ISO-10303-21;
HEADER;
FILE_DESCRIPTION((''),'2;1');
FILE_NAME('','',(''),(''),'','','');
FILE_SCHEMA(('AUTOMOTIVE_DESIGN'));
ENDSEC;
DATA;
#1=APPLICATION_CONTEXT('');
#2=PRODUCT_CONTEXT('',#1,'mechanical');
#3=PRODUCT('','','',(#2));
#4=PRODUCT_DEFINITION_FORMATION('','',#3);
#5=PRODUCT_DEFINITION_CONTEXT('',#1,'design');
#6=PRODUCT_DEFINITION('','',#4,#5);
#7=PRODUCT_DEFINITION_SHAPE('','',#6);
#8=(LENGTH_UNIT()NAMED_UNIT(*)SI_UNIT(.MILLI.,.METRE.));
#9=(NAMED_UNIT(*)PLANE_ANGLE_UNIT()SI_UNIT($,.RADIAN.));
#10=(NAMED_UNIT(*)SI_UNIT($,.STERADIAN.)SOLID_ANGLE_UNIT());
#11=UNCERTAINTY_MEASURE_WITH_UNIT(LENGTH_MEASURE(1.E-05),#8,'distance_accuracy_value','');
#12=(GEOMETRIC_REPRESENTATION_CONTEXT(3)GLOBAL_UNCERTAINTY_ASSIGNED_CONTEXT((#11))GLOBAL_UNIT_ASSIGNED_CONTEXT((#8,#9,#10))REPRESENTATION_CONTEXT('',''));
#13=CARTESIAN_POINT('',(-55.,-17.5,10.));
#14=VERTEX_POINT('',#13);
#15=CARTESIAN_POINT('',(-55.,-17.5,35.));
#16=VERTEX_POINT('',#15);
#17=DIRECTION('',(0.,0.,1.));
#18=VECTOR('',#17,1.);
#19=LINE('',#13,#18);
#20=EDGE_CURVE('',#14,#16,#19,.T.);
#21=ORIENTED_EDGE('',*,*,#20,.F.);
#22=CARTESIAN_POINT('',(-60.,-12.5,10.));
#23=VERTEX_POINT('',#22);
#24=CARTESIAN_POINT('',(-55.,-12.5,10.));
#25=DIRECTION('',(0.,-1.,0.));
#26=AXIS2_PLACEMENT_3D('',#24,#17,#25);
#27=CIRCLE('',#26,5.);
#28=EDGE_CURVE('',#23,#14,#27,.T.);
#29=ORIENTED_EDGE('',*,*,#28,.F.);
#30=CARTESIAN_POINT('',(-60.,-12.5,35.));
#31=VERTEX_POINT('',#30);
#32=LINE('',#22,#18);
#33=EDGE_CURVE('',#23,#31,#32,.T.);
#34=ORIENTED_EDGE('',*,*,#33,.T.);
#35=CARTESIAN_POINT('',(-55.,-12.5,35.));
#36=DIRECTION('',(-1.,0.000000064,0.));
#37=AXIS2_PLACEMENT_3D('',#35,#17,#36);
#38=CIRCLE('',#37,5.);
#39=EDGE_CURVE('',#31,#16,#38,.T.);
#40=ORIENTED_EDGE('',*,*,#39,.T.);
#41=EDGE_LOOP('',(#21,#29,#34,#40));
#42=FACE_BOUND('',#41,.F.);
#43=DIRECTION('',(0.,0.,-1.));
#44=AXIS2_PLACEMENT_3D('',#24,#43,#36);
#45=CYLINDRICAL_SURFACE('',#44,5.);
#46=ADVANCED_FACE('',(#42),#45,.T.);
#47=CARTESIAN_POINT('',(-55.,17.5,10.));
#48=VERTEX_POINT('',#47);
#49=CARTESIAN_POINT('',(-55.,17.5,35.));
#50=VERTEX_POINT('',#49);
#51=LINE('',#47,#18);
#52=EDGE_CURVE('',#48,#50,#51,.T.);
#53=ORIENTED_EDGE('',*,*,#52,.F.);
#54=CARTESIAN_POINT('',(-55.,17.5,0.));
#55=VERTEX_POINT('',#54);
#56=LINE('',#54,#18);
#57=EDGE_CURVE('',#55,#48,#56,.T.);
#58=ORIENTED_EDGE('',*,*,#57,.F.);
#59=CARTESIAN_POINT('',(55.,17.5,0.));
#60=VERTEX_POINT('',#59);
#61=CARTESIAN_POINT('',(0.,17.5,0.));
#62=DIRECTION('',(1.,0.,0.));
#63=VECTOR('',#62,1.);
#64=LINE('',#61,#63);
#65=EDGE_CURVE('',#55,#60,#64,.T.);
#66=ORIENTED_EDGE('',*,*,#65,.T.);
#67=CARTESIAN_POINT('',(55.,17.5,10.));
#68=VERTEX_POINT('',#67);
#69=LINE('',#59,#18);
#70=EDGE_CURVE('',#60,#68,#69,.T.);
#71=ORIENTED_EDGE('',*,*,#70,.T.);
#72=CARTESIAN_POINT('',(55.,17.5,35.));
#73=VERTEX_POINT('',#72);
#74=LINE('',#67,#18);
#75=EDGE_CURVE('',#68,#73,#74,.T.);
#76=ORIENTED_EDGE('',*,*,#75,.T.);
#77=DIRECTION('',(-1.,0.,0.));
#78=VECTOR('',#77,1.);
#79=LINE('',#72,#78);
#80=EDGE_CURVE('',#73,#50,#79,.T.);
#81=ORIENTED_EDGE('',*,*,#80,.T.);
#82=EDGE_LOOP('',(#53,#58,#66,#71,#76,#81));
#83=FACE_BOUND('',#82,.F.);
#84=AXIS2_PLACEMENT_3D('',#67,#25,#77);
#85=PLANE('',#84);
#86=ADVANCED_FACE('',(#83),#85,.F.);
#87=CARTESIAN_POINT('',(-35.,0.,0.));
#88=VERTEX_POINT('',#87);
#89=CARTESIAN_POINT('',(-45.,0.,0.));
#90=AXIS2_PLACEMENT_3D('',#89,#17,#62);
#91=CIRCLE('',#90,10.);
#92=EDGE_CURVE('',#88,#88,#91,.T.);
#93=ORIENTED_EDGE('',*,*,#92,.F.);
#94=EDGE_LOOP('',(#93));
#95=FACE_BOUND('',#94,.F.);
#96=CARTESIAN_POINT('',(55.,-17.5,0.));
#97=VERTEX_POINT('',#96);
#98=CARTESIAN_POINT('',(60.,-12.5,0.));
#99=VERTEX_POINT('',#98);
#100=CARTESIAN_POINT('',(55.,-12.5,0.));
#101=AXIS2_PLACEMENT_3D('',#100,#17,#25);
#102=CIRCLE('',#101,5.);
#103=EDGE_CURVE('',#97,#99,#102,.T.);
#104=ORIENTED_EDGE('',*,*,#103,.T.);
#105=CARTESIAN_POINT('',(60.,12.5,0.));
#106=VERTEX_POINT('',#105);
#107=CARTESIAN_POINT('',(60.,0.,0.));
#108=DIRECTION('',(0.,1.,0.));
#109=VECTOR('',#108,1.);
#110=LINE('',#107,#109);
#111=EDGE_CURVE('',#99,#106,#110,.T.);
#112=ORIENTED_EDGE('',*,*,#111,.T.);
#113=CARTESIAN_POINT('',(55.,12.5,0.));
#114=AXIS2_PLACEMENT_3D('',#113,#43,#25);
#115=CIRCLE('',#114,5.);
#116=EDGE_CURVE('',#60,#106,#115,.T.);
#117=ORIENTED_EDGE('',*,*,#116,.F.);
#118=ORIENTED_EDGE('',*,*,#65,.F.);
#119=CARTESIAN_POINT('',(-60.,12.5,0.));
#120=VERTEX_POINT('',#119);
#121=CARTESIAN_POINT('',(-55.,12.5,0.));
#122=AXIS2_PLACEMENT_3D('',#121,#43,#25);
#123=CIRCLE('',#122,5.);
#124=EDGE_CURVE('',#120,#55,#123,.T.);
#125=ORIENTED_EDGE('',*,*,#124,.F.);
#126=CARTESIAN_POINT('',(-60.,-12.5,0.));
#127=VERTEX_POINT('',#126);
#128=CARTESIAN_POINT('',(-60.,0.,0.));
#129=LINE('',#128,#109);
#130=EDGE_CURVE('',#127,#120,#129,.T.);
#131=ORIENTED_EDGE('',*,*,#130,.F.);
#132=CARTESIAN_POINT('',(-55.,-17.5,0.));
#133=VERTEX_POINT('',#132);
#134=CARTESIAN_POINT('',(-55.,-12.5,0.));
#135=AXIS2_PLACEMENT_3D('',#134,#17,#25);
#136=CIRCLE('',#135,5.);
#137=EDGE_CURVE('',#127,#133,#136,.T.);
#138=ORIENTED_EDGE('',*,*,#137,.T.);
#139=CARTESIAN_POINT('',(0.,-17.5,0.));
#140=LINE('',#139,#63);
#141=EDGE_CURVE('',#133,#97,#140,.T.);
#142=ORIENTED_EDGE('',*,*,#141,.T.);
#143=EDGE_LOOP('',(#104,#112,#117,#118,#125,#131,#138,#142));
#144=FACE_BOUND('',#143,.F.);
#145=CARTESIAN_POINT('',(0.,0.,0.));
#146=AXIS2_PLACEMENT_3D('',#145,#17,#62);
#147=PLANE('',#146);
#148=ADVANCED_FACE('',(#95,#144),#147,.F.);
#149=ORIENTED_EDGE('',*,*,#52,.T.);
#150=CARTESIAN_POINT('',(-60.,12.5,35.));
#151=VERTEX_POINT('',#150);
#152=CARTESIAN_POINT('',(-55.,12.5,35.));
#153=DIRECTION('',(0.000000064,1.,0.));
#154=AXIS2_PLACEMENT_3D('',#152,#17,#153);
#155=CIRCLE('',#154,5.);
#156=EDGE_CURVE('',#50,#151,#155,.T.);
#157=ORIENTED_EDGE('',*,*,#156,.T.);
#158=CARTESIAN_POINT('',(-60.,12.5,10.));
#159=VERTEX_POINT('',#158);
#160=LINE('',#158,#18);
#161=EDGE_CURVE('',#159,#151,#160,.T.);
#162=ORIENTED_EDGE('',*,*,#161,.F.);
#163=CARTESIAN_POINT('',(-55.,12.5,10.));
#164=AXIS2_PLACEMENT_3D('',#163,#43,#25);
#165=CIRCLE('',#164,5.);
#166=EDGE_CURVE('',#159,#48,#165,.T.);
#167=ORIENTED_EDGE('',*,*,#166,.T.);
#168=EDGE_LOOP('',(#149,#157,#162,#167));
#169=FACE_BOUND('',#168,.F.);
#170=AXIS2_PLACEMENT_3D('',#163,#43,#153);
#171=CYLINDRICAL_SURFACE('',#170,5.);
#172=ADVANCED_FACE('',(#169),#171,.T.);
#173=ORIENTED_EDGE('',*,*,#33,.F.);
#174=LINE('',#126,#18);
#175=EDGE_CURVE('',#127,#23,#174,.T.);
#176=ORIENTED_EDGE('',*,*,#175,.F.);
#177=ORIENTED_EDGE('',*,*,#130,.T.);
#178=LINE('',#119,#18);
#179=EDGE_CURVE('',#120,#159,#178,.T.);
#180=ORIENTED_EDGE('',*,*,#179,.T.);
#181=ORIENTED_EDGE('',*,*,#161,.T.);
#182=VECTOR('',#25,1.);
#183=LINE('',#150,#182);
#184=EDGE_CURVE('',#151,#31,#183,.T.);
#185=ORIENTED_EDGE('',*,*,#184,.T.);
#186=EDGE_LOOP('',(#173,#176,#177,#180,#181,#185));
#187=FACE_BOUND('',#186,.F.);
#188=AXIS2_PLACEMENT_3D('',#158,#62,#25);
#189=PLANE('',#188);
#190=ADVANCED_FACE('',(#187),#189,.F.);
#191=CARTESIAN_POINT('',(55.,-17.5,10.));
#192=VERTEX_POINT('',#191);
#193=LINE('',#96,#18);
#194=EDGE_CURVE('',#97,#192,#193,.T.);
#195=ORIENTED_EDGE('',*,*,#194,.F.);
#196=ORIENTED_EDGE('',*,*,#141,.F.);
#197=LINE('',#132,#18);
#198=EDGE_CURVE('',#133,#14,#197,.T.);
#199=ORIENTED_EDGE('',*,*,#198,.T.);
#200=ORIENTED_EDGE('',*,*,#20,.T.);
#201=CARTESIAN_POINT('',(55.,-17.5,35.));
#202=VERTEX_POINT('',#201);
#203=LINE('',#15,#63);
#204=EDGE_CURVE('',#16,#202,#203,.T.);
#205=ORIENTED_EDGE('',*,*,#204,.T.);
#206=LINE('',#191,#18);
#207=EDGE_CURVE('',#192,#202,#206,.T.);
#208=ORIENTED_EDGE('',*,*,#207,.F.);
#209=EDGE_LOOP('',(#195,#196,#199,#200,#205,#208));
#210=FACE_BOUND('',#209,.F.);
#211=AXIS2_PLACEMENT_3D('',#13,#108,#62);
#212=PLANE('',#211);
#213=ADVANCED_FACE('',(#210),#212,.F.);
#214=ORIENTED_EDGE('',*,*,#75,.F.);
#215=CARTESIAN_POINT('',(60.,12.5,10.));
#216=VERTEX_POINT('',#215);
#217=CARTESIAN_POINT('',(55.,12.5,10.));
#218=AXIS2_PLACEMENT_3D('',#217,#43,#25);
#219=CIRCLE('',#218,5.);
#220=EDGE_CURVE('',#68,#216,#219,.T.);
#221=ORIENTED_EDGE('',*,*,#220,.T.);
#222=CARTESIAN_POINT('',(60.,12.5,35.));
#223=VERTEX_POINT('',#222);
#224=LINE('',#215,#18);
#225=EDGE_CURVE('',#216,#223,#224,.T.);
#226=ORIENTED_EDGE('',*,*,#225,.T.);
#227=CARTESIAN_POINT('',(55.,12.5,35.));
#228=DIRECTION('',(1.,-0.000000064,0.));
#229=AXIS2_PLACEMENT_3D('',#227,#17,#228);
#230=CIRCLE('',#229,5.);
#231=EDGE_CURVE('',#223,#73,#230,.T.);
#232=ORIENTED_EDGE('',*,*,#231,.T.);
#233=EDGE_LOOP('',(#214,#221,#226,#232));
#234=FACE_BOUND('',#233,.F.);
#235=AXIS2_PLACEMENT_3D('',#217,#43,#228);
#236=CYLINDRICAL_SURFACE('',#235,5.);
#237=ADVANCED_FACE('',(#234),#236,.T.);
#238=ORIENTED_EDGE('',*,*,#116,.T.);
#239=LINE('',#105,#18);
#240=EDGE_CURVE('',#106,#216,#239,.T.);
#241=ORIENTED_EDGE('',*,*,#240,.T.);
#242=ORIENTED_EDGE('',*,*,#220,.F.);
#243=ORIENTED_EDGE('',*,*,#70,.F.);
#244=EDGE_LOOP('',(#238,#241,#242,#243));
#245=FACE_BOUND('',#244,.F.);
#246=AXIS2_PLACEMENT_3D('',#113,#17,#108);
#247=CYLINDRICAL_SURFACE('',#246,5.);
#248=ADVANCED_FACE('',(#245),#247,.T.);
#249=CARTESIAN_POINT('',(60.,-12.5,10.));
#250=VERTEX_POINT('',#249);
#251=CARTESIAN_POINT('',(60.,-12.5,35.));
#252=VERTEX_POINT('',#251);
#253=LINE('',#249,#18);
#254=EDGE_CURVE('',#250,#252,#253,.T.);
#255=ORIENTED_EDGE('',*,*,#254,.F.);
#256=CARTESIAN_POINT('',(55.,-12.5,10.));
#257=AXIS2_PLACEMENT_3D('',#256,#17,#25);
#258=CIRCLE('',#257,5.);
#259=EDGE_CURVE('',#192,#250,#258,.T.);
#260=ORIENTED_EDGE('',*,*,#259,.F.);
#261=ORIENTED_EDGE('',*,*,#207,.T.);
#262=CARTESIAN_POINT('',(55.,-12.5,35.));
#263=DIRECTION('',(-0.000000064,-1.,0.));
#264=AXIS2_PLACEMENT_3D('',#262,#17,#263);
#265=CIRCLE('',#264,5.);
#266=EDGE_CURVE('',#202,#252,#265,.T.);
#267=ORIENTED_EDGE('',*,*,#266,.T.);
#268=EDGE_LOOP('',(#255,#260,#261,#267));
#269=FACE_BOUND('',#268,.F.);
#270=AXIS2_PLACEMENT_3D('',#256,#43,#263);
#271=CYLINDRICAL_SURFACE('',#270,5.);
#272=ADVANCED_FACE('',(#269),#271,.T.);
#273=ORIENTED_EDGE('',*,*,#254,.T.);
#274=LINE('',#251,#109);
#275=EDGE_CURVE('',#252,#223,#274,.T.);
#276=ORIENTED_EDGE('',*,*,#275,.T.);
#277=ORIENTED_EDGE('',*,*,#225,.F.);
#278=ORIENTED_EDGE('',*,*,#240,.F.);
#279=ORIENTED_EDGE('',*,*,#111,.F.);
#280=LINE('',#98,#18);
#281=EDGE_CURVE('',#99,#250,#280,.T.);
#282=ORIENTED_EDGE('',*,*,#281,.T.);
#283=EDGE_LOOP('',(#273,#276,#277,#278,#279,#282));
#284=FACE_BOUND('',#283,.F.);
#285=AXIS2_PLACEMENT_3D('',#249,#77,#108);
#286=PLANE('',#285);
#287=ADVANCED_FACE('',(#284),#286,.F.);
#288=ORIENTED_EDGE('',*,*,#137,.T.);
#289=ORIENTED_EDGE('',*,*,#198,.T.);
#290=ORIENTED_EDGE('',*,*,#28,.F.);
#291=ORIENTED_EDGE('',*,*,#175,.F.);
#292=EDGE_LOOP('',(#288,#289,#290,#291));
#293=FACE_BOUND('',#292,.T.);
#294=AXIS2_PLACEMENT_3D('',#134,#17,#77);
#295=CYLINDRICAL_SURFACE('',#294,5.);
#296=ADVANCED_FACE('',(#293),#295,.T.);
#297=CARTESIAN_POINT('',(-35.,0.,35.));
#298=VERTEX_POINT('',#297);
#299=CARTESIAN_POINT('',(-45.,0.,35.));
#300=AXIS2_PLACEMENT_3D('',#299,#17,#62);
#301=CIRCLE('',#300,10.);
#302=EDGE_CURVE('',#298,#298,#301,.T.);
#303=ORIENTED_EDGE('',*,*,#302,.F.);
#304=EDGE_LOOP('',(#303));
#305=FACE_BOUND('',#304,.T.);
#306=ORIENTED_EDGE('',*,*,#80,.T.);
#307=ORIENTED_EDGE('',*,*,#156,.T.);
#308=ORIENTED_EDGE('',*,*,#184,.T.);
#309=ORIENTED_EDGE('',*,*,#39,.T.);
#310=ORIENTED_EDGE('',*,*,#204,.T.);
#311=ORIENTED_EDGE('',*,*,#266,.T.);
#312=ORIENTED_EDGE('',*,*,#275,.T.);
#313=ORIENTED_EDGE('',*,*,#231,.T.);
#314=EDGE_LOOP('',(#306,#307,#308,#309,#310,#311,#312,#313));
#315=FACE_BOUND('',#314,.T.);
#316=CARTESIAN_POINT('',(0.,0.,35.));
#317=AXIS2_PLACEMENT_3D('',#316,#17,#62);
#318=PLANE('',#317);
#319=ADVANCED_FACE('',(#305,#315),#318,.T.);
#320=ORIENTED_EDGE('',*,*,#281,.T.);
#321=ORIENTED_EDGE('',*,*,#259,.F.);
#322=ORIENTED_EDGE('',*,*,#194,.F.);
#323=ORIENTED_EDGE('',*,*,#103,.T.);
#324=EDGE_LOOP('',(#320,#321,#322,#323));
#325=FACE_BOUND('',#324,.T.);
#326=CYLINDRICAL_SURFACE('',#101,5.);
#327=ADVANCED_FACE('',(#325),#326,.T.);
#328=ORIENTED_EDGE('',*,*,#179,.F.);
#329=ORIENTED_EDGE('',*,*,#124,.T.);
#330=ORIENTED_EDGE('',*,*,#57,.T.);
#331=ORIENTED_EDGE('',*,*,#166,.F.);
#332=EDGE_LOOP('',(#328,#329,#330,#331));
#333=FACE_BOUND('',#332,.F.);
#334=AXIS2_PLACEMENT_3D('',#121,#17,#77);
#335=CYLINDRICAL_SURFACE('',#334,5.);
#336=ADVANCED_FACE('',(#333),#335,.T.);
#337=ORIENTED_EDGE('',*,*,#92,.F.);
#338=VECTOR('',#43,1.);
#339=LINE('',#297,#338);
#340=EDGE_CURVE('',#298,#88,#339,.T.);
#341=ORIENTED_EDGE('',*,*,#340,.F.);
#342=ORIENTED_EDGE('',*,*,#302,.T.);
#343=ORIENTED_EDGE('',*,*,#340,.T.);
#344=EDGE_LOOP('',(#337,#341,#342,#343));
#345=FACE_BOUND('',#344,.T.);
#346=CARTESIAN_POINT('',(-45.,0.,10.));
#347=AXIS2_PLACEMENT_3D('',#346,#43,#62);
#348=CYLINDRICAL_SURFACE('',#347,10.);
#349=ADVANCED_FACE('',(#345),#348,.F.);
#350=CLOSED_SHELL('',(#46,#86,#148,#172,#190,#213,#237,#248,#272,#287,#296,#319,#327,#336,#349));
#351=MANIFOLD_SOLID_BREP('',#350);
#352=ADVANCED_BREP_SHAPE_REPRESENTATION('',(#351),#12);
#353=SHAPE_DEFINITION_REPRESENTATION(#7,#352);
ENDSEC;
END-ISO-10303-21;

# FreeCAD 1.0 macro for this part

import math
import FreeCAD as App
import Part
import Sketcher
from FreeCAD import Vector


def edges_at(feature, points):
    """Names of the edges that pass closest to the given points."""
    edges = feature.Shape.Edges
    near = lambda p: min(range(len(edges)), key=lambda i: edges[i].distToShape(Part.Vertex(*p))[0])
    return sorted({f"Edge{near(p) + 1}" for p in points})


def add_polygon(sketch, points):
    """Adds a closed chain of lines whose ends are joined by coincident constraints."""
    first, n = sketch.GeometryCount, len(points)
    for a, b in zip(points, points[1:] + points[:1]):
        sketch.addGeometry(Part.LineSegment(App.Vector(*a, 0), App.Vector(*b, 0)), False)
    for i in range(n):
        sketch.addConstraint(Sketcher.Constraint("Coincident", first + i, 2, first + (i + 1) % n, 1))

doc = App.newDocument("Part")
body = doc.addObject("PartDesign::Body", "Body")

sketch1 = body.newObject("Sketcher::SketchObject", "Sketch")
sketch1.AttachmentSupport = (doc.getObject("XY_Plane"), [""])
sketch1.MapMode = "FlatFace"
add_polygon(sketch1, [(-60, 17.5), (-60, -17.5), (60, -17.5), (60, 17.5)])
sketch1.addGeometry(Part.Circle(Vector(-45, 0, 0), Vector(0, 0, 1), 10), False)
sketch1.addConstraint([
    Sketcher.Constraint("Vertical", 0),
    Sketcher.Constraint("Horizontal", 1),
    Sketcher.Constraint("Vertical", 2),
    Sketcher.Constraint("Horizontal", 3),
    Sketcher.Constraint("Symmetric", 0, 2, 2, 2, -1, 1),
    Sketcher.Constraint("PointOnObject", 4, 3, -1),
    Sketcher.Constraint("Diameter", 4, 20.0),
    Sketcher.Constraint("DistanceX", 1, 1, 1, 2, 120.0),
    Sketcher.Constraint("DistanceY", 0, 2, 0, 1, 35.0),
    Sketcher.Constraint("DistanceX", 4, 3, -1, 1, 45.0),
])
pad1 = body.newObject("PartDesign::Pad", "Pad")
pad1.Profile = sketch1
pad1.Length = 10
doc.recompute()

fillet = body.newObject("PartDesign::Fillet", "Fillet")
fillet.Base = (pad1, edges_at(pad1, [
    (-60, -17.5, 5),
    (60, -17.5, 5),
    (60, 17.5, 5),
    (-60, 17.5, 5),
]))
fillet.Radius = 5

sketch2 = body.newObject("Sketcher::SketchObject", "Sketch001")
sketch2.AttachmentSupport = (doc.getObject("XY_Plane"), [""])
sketch2.MapMode = "FlatFace"
sketch2.AttachmentOffset = App.Placement(Vector(0, 0, 10), App.Rotation())
sketch2.addGeometry([
    Part.ArcOfCircle(Part.Circle(Vector(55, -12.5, 0), Vector(0, 0, 1), 5), math.radians(-90.000004), math.radians(0.000004)),
    Part.LineSegment(Vector(60, -12.5, 0), Vector(60, 12.5, 0)),
    Part.ArcOfCircle(Part.Circle(Vector(55, 12.5, 0), Vector(0, 0, 1), 5), math.radians(-0.000004), math.radians(90.000004)),
    Part.LineSegment(Vector(55, 17.5, 0), Vector(-55, 17.5, 0)),
    Part.ArcOfCircle(Part.Circle(Vector(-55, 12.5, 0), Vector(0, 0, 1), 5), math.radians(89.999996), math.radians(180.000004)),
    Part.LineSegment(Vector(-60, 12.5, 0), Vector(-60, -12.5, 0)),
    Part.ArcOfCircle(Part.Circle(Vector(-55, -12.5, 0), Vector(0, 0, 1), 5), math.radians(179.999996), math.radians(270.000004)),
    Part.LineSegment(Vector(-55, -17.5, 0), Vector(55, -17.5, 0)),
    Part.Circle(Vector(-45, 0, 0), Vector(0, 0, 1), 10),
], False)
sketch2.addConstraint([
    Sketcher.Constraint("Tangent", 0, 2, 1, 1),
    Sketcher.Constraint("Tangent", 1, 2, 2, 1),
    Sketcher.Constraint("Tangent", 2, 2, 3, 1),
    Sketcher.Constraint("Tangent", 3, 2, 4, 1),
    Sketcher.Constraint("Tangent", 4, 2, 5, 1),
    Sketcher.Constraint("Tangent", 5, 2, 6, 1),
    Sketcher.Constraint("Tangent", 6, 2, 7, 1),
    Sketcher.Constraint("Tangent", 7, 2, 0, 1),
    Sketcher.Constraint("Vertical", 1),
    Sketcher.Constraint("Horizontal", 3),
    Sketcher.Constraint("Vertical", 5),
    Sketcher.Constraint("Horizontal", 7),
    Sketcher.Constraint("Equal", 0, 2),
    Sketcher.Constraint("Equal", 2, 4),
    Sketcher.Constraint("Equal", 4, 6),
    Sketcher.Constraint("Symmetric", 0, 3, 4, 3, -1, 1),
    Sketcher.Constraint("PointOnObject", 8, 3, -1),
    Sketcher.Constraint("Diameter", 8, 20.0),
    Sketcher.Constraint("Radius", 0, 5.0),
    Sketcher.Constraint("DistanceX", 3, 2, 3, 1, 110.0),
    Sketcher.Constraint("DistanceY", 1, 1, 1, 2, 25.0),
    Sketcher.Constraint("DistanceX", 8, 3, -1, 1, 45.0),
])
pad2 = body.newObject("PartDesign::Pad", "Pad001")
pad2.Profile = sketch2
pad2.Length = 25

doc.recompute()
